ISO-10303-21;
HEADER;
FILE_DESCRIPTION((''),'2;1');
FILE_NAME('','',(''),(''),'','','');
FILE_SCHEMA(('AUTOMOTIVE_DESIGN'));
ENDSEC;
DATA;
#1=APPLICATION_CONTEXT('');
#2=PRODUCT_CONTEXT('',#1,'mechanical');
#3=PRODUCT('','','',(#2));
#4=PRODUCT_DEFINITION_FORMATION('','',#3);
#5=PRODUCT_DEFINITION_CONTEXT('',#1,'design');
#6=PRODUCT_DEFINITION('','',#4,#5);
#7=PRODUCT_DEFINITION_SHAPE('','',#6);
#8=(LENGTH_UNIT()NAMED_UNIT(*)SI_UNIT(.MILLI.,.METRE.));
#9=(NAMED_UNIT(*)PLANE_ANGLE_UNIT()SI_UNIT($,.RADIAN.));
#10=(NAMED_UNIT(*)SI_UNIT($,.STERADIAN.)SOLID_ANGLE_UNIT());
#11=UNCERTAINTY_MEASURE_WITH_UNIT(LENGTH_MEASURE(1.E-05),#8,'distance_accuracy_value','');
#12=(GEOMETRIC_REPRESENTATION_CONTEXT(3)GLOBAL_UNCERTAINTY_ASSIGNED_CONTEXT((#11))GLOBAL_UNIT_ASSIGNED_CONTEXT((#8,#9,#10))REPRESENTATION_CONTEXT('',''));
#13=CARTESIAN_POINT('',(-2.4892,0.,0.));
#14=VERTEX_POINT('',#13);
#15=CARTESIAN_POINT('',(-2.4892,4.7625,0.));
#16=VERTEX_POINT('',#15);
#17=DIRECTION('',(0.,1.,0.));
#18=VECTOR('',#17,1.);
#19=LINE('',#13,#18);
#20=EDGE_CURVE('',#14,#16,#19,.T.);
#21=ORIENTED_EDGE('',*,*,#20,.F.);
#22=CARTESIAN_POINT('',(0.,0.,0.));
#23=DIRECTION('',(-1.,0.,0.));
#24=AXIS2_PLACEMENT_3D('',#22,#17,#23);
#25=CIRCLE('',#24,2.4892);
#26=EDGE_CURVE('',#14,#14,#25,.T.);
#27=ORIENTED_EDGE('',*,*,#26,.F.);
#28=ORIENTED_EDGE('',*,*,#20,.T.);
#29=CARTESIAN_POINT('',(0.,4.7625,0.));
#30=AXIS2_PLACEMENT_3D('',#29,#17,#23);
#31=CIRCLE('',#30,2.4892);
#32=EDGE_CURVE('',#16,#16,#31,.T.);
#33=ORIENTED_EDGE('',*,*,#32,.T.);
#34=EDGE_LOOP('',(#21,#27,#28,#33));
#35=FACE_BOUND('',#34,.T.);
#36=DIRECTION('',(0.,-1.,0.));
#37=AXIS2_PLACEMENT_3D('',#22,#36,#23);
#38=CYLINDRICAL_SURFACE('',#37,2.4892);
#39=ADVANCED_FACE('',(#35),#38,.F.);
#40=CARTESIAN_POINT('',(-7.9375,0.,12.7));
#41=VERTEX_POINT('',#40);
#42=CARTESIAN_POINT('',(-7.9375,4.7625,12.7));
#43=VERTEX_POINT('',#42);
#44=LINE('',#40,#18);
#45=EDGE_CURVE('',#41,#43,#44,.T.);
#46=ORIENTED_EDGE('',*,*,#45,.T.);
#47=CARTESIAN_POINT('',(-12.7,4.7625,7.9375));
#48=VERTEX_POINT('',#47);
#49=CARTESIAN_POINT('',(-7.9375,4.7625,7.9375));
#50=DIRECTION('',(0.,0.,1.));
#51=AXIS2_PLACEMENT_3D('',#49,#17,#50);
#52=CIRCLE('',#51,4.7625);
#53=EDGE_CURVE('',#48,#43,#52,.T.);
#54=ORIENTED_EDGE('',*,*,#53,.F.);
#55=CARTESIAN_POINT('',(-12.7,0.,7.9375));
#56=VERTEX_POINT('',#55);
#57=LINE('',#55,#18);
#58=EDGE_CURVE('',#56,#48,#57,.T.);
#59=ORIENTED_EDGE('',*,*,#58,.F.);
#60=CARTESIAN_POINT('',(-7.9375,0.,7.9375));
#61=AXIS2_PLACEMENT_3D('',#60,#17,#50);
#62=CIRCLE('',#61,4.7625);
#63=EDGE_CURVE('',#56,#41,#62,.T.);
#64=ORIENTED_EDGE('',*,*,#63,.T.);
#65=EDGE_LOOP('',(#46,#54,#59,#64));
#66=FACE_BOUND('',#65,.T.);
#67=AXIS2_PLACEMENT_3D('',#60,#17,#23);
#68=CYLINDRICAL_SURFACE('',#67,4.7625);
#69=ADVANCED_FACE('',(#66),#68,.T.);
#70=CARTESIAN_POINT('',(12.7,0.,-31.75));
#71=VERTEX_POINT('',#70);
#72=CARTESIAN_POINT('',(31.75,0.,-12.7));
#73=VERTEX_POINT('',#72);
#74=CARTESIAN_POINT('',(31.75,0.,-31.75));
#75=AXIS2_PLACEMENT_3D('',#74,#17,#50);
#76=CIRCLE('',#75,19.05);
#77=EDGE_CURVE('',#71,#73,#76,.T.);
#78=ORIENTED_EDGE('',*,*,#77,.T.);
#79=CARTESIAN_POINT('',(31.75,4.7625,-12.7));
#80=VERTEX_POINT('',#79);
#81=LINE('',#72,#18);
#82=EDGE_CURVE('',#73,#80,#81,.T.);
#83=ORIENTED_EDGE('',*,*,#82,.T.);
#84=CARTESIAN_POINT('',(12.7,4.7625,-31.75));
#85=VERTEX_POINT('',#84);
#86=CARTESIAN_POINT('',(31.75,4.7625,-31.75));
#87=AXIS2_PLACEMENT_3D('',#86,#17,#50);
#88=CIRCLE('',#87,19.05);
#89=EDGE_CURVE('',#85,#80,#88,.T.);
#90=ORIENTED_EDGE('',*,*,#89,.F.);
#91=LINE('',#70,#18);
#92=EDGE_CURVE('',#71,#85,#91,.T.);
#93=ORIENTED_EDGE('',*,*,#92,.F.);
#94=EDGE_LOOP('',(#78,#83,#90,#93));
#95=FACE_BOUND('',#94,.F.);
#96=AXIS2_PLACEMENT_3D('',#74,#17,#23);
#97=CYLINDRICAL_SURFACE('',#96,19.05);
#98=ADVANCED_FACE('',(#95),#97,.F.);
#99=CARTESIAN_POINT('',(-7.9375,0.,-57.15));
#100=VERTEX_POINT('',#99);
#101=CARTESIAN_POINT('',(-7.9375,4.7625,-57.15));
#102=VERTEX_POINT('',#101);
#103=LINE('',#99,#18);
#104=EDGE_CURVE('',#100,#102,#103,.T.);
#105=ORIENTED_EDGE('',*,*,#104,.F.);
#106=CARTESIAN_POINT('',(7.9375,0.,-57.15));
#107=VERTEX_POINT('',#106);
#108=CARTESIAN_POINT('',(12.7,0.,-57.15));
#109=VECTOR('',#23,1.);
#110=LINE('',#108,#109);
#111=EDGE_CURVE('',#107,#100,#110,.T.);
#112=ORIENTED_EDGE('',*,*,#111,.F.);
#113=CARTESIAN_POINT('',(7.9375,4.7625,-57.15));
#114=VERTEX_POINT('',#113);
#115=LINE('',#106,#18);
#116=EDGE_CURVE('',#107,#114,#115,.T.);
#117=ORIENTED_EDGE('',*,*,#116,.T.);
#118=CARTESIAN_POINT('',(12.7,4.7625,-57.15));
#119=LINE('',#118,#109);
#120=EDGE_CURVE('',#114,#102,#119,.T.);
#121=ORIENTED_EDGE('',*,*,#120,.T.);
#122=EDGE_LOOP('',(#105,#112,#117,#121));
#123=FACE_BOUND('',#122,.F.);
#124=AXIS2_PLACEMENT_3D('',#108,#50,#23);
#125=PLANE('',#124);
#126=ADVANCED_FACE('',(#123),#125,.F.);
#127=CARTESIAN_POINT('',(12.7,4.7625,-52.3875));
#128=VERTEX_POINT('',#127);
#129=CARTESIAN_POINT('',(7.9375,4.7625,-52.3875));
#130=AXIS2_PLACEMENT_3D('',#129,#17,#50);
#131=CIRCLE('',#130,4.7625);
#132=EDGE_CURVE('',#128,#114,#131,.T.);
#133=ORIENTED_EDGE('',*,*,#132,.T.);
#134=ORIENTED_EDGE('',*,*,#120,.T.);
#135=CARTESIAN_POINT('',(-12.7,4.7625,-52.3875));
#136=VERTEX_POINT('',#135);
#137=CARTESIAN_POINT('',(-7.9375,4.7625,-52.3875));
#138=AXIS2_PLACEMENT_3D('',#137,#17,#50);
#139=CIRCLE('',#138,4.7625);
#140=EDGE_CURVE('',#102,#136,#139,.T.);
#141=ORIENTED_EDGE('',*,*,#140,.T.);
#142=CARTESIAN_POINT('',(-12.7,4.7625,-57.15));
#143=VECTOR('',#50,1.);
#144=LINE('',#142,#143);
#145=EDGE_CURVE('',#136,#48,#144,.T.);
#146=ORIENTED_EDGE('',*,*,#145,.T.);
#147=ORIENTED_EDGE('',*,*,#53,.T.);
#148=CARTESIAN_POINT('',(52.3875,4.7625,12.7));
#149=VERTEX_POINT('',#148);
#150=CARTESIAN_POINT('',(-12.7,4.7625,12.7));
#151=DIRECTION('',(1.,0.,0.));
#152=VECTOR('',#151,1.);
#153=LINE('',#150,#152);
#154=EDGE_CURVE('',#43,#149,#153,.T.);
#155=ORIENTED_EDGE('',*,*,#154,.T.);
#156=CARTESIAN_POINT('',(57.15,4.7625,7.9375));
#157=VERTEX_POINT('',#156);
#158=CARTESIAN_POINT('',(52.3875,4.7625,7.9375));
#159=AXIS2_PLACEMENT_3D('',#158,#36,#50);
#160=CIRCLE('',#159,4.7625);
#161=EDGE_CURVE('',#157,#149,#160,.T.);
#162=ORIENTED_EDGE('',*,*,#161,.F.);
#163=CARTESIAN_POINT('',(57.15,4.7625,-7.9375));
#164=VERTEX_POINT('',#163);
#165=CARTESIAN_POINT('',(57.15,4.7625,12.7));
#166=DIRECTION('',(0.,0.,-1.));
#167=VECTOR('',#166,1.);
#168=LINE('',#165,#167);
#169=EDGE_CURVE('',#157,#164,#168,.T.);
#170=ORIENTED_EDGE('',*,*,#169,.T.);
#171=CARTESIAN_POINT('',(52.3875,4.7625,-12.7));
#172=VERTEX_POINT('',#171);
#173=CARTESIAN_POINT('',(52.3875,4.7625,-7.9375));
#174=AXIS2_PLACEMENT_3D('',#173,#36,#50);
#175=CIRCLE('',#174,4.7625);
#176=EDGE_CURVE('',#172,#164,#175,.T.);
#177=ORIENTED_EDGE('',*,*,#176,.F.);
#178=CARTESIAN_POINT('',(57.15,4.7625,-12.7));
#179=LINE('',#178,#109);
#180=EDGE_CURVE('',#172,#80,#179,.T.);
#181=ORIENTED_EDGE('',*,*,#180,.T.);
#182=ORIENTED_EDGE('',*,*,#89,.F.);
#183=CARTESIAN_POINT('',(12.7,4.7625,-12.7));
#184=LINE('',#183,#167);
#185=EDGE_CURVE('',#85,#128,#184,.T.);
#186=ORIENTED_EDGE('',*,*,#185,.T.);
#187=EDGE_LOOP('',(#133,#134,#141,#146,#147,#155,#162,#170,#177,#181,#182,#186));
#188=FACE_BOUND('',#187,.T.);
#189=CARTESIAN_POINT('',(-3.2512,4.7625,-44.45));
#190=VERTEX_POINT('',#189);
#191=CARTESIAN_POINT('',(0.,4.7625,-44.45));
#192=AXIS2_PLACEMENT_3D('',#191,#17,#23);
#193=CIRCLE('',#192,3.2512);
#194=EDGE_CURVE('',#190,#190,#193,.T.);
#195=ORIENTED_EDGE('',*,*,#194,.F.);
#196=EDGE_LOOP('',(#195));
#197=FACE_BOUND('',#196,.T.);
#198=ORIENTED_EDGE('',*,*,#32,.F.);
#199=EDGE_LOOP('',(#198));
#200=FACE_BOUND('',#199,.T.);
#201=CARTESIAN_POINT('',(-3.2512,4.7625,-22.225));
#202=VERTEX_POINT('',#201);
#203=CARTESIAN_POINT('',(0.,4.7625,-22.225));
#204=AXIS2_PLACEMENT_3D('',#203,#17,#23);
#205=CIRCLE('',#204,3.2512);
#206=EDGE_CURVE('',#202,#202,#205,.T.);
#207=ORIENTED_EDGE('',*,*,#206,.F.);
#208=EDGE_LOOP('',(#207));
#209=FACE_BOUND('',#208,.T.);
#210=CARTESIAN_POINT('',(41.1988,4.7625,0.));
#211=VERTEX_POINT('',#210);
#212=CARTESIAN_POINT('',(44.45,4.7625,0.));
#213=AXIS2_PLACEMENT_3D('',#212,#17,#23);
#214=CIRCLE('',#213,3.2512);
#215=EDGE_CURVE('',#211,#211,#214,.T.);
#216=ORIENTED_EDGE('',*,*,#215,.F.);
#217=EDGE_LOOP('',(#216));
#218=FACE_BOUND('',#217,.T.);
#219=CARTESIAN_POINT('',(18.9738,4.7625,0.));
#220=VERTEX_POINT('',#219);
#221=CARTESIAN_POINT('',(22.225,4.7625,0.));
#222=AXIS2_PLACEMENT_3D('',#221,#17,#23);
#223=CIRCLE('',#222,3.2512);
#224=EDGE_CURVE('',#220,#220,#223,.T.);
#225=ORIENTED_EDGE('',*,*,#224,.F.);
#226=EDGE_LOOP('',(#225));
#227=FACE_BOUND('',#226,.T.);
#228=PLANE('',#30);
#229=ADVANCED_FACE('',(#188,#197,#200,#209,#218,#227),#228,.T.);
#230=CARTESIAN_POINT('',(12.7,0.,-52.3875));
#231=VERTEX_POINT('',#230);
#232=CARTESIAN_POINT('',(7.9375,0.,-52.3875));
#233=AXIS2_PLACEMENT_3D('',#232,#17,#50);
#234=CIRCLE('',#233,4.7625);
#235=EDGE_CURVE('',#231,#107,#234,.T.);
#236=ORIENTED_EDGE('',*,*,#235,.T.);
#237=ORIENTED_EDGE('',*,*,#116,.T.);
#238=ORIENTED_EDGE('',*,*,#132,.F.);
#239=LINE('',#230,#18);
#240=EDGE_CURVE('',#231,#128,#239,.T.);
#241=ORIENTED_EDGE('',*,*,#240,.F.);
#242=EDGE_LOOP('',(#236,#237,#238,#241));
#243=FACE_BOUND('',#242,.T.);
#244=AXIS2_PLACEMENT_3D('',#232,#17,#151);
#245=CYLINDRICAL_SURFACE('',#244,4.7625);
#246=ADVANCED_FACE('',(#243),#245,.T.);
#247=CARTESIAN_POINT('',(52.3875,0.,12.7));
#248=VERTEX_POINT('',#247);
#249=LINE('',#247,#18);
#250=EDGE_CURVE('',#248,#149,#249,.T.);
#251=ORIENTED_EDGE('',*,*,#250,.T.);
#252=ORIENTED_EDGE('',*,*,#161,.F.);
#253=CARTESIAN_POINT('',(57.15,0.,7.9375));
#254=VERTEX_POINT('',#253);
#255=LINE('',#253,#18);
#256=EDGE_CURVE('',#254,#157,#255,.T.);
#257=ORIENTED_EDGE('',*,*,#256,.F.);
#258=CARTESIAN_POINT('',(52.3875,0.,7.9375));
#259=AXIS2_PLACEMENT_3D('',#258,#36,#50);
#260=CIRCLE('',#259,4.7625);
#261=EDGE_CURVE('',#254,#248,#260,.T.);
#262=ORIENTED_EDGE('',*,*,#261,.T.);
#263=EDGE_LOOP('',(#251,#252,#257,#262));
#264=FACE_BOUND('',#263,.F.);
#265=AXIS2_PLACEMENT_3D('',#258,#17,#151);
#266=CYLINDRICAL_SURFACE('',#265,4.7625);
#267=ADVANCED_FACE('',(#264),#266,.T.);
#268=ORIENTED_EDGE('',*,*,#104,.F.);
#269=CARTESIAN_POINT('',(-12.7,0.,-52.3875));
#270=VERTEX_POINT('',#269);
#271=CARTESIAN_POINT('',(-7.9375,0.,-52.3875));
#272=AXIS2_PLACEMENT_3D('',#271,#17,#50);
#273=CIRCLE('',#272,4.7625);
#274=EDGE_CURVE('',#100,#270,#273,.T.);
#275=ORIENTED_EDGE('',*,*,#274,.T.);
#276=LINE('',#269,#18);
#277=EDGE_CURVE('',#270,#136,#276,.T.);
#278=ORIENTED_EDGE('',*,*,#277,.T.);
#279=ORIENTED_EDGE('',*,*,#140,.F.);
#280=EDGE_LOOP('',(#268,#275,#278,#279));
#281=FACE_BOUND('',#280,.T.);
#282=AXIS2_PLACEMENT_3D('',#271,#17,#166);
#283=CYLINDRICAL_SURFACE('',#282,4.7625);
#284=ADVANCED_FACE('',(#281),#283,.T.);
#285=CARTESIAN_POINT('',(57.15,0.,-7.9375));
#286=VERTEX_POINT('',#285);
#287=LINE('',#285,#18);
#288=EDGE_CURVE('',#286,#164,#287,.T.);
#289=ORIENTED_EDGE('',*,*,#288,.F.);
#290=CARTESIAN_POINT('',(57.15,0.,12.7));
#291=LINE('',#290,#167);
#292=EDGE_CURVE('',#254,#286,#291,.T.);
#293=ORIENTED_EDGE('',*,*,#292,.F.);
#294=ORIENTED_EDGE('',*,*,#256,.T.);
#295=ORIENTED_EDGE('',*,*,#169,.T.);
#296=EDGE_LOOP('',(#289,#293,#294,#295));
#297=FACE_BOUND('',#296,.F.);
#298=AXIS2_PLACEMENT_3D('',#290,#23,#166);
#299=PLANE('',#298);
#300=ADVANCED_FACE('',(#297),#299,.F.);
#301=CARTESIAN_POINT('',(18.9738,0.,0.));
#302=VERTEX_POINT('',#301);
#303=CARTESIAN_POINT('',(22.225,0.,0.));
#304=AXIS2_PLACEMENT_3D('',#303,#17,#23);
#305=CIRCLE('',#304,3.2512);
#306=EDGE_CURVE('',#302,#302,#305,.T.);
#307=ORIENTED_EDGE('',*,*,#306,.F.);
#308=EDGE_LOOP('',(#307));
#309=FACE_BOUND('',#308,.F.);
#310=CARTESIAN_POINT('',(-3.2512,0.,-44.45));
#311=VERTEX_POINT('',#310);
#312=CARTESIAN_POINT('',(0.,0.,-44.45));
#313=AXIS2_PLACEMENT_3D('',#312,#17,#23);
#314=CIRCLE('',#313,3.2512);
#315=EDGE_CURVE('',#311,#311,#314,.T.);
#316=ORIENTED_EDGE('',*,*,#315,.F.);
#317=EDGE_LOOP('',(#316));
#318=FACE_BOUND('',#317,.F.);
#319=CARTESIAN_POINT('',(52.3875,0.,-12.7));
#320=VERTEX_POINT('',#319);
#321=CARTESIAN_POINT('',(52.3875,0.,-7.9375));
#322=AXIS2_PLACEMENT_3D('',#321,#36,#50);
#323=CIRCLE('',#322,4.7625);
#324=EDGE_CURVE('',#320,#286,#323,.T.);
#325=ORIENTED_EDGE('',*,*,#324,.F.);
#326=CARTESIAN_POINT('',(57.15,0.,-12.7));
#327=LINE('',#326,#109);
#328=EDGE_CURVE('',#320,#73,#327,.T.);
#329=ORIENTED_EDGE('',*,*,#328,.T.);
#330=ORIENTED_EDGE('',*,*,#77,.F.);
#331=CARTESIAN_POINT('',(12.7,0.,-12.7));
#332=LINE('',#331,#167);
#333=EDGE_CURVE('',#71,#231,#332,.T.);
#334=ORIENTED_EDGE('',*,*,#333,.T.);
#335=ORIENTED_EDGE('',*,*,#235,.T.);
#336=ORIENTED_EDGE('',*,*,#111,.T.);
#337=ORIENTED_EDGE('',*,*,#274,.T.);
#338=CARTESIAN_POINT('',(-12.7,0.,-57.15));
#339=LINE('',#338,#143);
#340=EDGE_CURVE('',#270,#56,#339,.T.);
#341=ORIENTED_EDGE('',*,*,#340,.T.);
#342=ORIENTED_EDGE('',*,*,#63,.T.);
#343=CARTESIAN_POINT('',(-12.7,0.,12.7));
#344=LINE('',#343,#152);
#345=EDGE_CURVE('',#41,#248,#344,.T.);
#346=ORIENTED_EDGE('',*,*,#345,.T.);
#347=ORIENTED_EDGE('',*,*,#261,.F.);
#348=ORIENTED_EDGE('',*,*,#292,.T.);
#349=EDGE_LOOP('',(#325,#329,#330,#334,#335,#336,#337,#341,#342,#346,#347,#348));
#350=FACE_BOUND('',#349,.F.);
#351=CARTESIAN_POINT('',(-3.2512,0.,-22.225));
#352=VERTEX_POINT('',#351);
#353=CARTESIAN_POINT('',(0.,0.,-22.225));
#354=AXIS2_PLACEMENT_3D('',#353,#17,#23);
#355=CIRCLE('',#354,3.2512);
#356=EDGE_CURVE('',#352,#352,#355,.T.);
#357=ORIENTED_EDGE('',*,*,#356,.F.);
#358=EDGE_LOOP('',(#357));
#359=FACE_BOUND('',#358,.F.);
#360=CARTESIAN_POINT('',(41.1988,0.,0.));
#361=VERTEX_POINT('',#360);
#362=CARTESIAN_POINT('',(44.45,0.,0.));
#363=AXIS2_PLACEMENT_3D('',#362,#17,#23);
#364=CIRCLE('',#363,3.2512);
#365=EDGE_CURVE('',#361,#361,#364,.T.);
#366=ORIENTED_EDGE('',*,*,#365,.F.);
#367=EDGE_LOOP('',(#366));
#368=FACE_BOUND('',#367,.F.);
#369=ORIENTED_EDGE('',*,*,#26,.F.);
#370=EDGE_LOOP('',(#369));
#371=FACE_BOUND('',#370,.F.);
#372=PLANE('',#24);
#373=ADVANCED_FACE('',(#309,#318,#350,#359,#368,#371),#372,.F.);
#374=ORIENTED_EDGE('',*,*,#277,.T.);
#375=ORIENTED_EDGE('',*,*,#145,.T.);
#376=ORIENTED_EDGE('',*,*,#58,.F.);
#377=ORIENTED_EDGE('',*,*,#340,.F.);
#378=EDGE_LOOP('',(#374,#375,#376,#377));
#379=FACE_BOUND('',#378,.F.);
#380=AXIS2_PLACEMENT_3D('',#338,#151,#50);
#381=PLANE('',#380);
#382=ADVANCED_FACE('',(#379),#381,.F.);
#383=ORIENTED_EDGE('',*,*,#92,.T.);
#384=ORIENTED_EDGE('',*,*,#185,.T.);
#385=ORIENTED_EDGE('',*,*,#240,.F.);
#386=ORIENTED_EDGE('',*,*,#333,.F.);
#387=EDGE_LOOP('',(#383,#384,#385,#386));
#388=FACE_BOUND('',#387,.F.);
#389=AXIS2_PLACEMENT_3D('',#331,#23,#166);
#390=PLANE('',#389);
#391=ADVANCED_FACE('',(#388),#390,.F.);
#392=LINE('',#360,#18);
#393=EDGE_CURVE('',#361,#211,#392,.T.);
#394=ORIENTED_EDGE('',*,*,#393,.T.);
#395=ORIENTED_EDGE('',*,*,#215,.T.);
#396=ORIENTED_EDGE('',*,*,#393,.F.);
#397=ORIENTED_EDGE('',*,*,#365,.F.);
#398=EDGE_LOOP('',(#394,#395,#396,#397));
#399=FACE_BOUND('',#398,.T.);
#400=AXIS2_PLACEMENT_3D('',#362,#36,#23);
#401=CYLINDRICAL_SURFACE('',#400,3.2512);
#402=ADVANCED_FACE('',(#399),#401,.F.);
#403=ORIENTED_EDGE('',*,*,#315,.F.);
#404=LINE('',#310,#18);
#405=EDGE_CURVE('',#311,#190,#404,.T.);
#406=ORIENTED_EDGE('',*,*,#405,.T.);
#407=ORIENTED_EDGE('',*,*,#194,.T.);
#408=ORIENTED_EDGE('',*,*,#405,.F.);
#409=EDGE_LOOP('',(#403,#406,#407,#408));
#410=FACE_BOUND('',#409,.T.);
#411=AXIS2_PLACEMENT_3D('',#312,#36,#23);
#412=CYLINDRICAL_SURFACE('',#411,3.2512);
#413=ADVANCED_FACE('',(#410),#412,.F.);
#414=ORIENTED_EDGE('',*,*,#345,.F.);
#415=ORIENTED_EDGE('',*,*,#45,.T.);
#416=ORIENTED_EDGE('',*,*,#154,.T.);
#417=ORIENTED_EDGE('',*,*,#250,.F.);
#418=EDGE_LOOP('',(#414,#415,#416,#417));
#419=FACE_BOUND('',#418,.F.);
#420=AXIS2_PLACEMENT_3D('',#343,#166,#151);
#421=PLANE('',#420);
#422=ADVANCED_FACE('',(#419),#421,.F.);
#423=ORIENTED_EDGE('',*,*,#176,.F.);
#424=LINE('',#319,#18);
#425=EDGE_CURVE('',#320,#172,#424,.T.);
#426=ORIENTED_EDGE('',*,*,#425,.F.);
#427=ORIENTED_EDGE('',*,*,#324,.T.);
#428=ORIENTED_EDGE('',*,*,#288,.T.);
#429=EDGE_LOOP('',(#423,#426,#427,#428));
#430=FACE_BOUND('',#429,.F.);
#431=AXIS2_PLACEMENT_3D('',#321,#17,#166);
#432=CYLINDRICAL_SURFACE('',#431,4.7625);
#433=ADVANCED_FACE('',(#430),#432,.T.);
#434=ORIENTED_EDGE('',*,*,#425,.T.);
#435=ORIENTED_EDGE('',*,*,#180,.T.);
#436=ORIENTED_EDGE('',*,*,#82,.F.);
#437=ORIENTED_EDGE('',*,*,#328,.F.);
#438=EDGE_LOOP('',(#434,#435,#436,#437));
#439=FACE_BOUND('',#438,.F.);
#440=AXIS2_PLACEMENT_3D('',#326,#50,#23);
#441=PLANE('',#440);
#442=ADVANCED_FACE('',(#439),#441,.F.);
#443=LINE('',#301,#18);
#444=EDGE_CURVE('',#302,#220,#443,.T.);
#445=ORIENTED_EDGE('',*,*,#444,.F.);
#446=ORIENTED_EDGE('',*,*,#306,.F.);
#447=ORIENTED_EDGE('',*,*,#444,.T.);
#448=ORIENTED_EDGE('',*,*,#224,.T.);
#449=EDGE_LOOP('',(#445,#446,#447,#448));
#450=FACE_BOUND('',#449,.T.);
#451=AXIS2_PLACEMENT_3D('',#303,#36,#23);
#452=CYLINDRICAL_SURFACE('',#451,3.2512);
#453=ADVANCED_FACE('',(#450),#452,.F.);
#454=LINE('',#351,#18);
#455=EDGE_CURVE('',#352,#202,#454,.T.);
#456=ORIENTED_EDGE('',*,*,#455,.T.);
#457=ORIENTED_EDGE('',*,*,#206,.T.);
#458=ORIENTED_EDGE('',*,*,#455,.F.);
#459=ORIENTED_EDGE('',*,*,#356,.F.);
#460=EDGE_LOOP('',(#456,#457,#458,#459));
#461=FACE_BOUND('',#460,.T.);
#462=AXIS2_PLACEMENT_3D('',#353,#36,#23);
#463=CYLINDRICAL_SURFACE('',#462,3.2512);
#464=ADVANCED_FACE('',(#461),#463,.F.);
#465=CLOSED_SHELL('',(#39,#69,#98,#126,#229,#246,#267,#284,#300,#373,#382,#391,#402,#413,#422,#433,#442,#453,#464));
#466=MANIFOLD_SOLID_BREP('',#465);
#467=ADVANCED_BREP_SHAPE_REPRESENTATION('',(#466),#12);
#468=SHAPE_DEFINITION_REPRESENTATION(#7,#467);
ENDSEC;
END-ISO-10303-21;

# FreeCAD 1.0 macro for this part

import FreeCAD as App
import Part
import Sketcher
Q = App.Units.Quantity


def edges_at(feature, points):
    """Names of the edges that pass closest to the given points."""
    edges = feature.Shape.Edges
    near = lambda p: min(range(len(edges)), key=lambda i: edges[i].distToShape(Part.Vertex(*p))[0])
    return sorted({f"Edge{near(p) + 1}" for p in points})

doc = App.newDocument("Part")
body = doc.addObject("PartDesign::Body", "Body")

# Sketch on XZ plane
sketch1 = body.newObject("Sketcher::SketchObject", "Sketch")
sketch1.AttachmentSupport = (doc.getObject("XZ_Plane"), [""])
sketch1.MapMode = "FlatFace"
sketch1.addGeometry([
    Part.LineSegment(App.Vector(-12.7, -57.15, 0), App.Vector(-12.7, 12.7, 0)),  # 0
    Part.LineSegment(App.Vector(-12.7, 12.7, 0), App.Vector(57.15, 12.7, 0)),  # 1
    Part.LineSegment(App.Vector(57.15, 12.7, 0), App.Vector(57.15, -12.7, 0)),  # 2
    Part.LineSegment(App.Vector(57.15, -12.7, 0), App.Vector(12.7, -12.7, 0)),  # 3
    Part.LineSegment(App.Vector(12.7, -12.7, 0), App.Vector(12.7, -57.15, 0)),  # 4
    Part.LineSegment(App.Vector(12.7, -57.15, 0), App.Vector(-12.7, -57.15, 0)),  # 5
    Part.Circle(App.Vector(0, -44.45, 0), App.Vector(0, 0, 1), 3.2512),  # 6
    Part.Circle(App.Vector(44.45, 0, 0), App.Vector(0, 0, 1), 3.2512),  # 7
    Part.Circle(App.Vector(0, -22.225, 0), App.Vector(0, 0, 1), 3.2512),  # 8
    Part.Circle(App.Vector(22.225, 0, 0), App.Vector(0, 0, 1), 3.2512),  # 9
    Part.Circle(App.Vector(0, 0, 0), App.Vector(0, 0, 1), 2.4892),  # 10
], False)
sketch1.addConstraint([
    Sketcher.Constraint("Coincident", 0, 2, 1, 1),
    Sketcher.Constraint("Coincident", 1, 2, 2, 1),
    Sketcher.Constraint("Coincident", 2, 2, 3, 1),
    Sketcher.Constraint("Coincident", 3, 2, 4, 1),
    Sketcher.Constraint("Coincident", 4, 2, 5, 1),
    Sketcher.Constraint("Coincident", 5, 2, 0, 1),
    Sketcher.Constraint("Vertical", 0),
    Sketcher.Constraint("Horizontal", 1),
    Sketcher.Constraint("Vertical", 2),
    Sketcher.Constraint("Horizontal", 3),
    Sketcher.Constraint("Vertical", 4),
    Sketcher.Constraint("Horizontal", 5),
    Sketcher.Constraint("Coincident", 10, 3, -1, 1),
    Sketcher.Constraint("Equal", 6, 7),
    Sketcher.Constraint("Equal", 7, 8),
    Sketcher.Constraint("Equal", 8, 9),
    Sketcher.Constraint("Symmetric", 0, 2, 3, 2, -1, 1),
    Sketcher.Constraint("PointOnObject", 6, 3, -2),
    Sketcher.Constraint("PointOnObject", 7, 3, -1),
    Sketcher.Constraint("PointOnObject", 8, 3, -2),
    Sketcher.Constraint("PointOnObject", 9, 3, -1),
    Sketcher.Constraint("Equal", 1, 0),
    Sketcher.Constraint("Equal", 5, 2),
    Sketcher.Constraint("Diameter", 6, Q("0.256 in")),
    Sketcher.Constraint("Diameter", 10, Q("0.196 in")),
    Sketcher.Constraint("DistanceX", 0, 2, -1, 1, Q("0.5 in")),
    Sketcher.Constraint("DistanceX", 7, 3, 1, 2, Q("0.5 in")),
    Sketcher.Constraint("DistanceY", 4, 2, 6, 3, Q("0.5 in")),
    Sketcher.Constraint("DistanceY", 8, 3, -1, 1, Q("0.875 in")),
    Sketcher.Constraint("DistanceX", -1, 1, 9, 3, Q("0.875 in")),
    Sketcher.Constraint("DistanceY", 6, 3, 8, 3, Q("0.875 in")),
])
pad1 = body.newObject("PartDesign::Pad", "Pad")
pad1.Profile = sketch1
pad1.Length = Q("0.1875 in")
pad1.Reversed = True
doc.recompute()

fillet = body.newObject("PartDesign::Fillet", "Fillet")
fillet.Base = (pad1, edges_at(pad1, [(12.7, 2.381, -12.7)]))
fillet.Radius = Q("0.75 in")
doc.recompute()

fillet2 = body.newObject("PartDesign::Fillet", "Fillet001")
fillet2.Base = (fillet, edges_at(fillet, [
    (57.15, 2.381, -12.7),
    (57.15, 2.381, 12.7),
    (12.7, 2.381, -57.15),
    (-12.7, 2.381, -57.15),
    (-12.7, 2.381, 12.7),
]))
fillet2.Radius = Q("0.1875 in")

doc.recompute()
